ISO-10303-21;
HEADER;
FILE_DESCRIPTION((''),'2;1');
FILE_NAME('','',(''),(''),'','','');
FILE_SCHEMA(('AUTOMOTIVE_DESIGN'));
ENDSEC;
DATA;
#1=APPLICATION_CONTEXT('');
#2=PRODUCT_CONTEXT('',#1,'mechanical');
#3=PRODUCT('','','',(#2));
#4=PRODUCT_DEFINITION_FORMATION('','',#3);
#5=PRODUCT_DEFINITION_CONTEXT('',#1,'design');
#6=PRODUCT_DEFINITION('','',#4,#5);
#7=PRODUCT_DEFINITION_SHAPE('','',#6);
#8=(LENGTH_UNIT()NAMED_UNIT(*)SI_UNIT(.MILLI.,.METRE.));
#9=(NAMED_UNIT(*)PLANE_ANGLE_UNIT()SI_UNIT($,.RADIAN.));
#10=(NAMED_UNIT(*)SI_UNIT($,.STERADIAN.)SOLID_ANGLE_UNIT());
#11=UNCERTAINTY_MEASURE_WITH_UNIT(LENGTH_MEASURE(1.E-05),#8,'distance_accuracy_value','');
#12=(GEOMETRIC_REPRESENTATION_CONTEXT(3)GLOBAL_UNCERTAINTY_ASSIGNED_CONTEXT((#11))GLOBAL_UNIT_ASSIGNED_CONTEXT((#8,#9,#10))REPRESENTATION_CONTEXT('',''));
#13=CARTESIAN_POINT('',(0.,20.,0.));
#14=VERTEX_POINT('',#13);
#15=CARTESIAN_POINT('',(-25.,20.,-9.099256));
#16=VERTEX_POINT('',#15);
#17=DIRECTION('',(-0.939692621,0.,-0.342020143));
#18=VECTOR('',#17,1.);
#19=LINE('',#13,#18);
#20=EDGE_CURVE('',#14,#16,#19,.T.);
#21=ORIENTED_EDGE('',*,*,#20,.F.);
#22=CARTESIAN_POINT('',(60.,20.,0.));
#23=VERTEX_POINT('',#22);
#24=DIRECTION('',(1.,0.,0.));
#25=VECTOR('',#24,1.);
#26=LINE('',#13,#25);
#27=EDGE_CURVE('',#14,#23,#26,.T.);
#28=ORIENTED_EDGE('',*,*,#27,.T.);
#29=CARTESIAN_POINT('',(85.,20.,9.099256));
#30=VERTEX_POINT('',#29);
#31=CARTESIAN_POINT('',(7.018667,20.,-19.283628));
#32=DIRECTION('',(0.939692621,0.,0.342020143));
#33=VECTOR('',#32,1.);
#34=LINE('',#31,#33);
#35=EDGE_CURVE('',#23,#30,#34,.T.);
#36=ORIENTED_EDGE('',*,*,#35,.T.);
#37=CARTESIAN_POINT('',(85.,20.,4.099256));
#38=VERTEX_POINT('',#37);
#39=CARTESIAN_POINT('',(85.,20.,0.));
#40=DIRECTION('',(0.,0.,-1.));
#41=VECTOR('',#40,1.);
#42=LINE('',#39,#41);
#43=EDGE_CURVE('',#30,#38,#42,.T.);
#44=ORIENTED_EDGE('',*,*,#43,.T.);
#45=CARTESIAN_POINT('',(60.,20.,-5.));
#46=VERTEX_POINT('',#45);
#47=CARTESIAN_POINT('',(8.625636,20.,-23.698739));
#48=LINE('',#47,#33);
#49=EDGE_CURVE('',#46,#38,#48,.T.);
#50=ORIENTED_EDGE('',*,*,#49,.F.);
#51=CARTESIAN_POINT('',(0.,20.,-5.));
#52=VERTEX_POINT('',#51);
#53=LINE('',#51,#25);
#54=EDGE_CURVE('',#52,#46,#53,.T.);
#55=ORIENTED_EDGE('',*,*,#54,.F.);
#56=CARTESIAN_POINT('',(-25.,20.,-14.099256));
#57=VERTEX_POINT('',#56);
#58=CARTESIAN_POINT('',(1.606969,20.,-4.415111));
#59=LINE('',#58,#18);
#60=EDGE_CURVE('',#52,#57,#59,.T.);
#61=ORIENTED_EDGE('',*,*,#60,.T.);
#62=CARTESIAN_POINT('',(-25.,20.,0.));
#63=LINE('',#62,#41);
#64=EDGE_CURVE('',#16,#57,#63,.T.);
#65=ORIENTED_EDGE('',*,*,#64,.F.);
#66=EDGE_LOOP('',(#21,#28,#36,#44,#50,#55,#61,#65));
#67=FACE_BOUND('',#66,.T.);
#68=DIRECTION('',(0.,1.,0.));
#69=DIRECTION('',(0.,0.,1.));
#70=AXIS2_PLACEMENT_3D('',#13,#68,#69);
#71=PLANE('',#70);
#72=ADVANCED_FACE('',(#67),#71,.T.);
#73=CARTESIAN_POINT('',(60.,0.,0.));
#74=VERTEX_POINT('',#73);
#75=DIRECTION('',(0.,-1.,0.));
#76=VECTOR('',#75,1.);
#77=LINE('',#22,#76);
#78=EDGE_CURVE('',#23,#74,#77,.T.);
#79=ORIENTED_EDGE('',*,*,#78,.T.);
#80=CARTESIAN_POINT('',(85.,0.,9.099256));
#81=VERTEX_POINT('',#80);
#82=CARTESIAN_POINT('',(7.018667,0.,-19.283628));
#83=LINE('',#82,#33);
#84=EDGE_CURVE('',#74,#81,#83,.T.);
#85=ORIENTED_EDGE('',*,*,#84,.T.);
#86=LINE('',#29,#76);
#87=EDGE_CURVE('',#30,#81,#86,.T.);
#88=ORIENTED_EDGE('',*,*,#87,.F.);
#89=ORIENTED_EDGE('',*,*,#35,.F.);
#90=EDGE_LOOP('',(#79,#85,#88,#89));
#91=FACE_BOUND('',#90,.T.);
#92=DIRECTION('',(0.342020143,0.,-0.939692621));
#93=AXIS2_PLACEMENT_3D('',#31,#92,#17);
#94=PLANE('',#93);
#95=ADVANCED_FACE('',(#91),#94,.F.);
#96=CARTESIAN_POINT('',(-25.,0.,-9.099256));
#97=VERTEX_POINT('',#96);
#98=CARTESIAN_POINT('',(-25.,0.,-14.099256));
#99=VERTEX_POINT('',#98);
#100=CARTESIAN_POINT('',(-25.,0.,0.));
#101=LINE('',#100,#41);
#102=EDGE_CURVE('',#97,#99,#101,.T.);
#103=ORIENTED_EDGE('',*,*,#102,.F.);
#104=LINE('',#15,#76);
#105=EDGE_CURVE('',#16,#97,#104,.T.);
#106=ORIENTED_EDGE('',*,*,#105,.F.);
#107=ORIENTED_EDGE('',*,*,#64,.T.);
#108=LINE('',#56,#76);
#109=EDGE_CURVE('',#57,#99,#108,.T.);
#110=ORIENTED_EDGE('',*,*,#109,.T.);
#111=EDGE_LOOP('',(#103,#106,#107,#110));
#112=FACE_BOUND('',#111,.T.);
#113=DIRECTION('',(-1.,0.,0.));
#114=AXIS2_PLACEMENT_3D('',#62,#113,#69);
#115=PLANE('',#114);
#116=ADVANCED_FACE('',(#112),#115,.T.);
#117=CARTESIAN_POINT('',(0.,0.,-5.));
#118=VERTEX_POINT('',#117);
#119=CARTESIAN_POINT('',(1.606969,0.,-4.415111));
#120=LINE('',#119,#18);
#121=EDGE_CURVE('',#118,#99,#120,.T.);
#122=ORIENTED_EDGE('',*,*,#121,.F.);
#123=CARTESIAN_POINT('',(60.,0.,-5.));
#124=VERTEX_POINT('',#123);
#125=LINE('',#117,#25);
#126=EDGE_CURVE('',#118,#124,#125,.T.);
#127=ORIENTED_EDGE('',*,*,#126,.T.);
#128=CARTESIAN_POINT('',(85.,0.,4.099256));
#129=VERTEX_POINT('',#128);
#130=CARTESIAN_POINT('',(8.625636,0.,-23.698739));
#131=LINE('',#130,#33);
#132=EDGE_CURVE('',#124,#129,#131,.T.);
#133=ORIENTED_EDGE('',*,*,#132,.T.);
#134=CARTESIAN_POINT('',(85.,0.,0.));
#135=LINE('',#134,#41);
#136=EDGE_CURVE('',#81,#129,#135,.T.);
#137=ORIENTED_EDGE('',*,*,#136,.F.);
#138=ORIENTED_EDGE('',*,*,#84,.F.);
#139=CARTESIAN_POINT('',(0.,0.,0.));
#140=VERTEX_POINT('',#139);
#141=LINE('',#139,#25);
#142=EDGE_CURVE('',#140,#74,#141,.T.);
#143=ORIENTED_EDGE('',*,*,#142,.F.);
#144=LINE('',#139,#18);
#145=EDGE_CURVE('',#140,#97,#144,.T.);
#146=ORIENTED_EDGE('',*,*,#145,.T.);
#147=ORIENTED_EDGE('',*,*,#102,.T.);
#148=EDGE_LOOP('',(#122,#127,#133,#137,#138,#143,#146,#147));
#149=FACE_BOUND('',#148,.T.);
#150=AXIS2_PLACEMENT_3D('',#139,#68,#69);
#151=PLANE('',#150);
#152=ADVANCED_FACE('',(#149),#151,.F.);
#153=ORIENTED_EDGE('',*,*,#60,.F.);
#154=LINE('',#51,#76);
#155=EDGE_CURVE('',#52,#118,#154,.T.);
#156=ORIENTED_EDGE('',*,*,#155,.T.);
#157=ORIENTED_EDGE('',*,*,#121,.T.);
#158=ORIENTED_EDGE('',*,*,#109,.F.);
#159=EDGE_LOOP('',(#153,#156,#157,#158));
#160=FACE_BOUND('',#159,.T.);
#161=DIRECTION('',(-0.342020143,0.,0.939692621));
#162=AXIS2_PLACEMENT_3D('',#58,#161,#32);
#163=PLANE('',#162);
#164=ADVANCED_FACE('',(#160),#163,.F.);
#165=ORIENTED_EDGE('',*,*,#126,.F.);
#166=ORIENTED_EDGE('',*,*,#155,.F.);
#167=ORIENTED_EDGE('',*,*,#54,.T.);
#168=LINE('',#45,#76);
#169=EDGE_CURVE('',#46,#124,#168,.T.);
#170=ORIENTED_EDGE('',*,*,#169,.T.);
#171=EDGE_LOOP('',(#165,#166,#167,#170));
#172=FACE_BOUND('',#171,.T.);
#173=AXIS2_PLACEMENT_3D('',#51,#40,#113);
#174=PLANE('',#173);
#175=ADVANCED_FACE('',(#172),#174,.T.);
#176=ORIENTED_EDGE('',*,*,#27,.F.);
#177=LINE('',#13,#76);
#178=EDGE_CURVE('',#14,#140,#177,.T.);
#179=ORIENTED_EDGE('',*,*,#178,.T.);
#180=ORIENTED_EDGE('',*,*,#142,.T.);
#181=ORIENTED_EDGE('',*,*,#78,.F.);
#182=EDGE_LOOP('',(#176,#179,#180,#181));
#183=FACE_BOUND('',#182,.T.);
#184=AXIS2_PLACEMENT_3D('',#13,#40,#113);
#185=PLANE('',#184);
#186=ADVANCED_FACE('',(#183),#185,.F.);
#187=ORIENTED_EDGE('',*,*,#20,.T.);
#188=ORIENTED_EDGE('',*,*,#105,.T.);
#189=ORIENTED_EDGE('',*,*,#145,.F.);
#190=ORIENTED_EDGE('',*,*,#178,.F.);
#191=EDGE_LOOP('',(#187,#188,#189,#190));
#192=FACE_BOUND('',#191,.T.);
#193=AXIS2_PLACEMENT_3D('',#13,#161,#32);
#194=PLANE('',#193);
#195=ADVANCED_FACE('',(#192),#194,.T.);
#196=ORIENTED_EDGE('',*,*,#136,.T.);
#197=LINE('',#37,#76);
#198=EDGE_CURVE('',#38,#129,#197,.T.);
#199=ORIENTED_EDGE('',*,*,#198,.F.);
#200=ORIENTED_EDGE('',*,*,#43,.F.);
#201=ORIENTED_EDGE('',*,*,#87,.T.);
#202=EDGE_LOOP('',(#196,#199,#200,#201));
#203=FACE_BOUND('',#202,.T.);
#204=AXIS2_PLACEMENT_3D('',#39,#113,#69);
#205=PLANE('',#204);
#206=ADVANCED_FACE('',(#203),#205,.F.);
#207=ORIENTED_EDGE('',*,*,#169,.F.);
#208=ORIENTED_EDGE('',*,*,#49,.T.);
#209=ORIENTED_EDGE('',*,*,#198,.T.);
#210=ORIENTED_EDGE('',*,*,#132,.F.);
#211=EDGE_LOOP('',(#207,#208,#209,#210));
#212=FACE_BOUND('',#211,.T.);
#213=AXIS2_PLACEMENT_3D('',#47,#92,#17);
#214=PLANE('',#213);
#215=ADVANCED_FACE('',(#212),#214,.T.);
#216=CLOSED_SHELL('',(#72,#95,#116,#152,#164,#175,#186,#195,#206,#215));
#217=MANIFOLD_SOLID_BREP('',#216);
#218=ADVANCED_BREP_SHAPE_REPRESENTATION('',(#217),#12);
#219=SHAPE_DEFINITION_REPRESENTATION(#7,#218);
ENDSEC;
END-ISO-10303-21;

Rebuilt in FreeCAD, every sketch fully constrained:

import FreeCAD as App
import Part
import Sketcher
Q = App.Units.Quantity

doc = App.newDocument("Part")
params = doc.addObject("Spreadsheet::Sheet", "Params")
for row, (alias, value) in enumerate([
    ("sketch1_width", "60 mm"),
    ("sketch1_height", "5 mm"),
    ("pad1_length", "20 mm"),
], start=1):
    params.set(f"A{row}", alias)
    params.set(f"B{row}", "=" + value)
    params.setAlias(f"B{row}", alias)

body = doc.addObject("PartDesign::Body", "Body")

# Sketch on XZ plane
sketch1 = doc.addObject("Sketcher::SketchObject", "Sketch")
body.addObject(sketch1)
sketch1.AttachmentSupport = (doc.XZ_Plane, [""])
sketch1.MapMode = "FlatFace"
sketch1.addGeometry(Part.LineSegment(App.Vector(-25, -14.1, 0), App.Vector(-25, -9.1, 0)), False)
sketch1.addGeometry(Part.LineSegment(App.Vector(-25, -9.1, 0), App.Vector(0, 0, 0)), False)
sketch1.addGeometry(Part.LineSegment(App.Vector(0, 0, 0), App.Vector(60, 0, 0)), False)
sketch1.addGeometry(Part.LineSegment(App.Vector(60, 0, 0), App.Vector(85, 9.1, 0)), False)
sketch1.addGeometry(Part.LineSegment(App.Vector(85, 9.1, 0), App.Vector(85, 4.1, 0)), False)
sketch1.addGeometry(Part.LineSegment(App.Vector(85, 4.1, 0), App.Vector(60, -5, 0)), False)
sketch1.addGeometry(Part.LineSegment(App.Vector(60, -5, 0), App.Vector(0, -5, 0)), False)
sketch1.addGeometry(Part.LineSegment(App.Vector(0, -5, 0), App.Vector(-25, -14.1, 0)), False)
sketch1.addConstraint(Sketcher.Constraint("Coincident", 0, 2, 1, 1))
sketch1.addConstraint(Sketcher.Constraint("Coincident", 1, 2, 2, 1))
sketch1.addConstraint(Sketcher.Constraint("Coincident", 2, 2, 3, 1))
sketch1.addConstraint(Sketcher.Constraint("Coincident", 3, 2, 4, 1))
sketch1.addConstraint(Sketcher.Constraint("Coincident", 4, 2, 5, 1))
sketch1.addConstraint(Sketcher.Constraint("Coincident", 5, 2, 6, 1))
sketch1.addConstraint(Sketcher.Constraint("Coincident", 6, 2, 7, 1))
sketch1.addConstraint(Sketcher.Constraint("Coincident", 7, 2, 0, 1))
sketch1.addConstraint(Sketcher.Constraint("Vertical", 0))
sketch1.addConstraint(Sketcher.Constraint("Horizontal", 2))
sketch1.addConstraint(Sketcher.Constraint("Vertical", 4))
sketch1.addConstraint(Sketcher.Constraint("Horizontal", 6))
sketch1.addConstraint(Sketcher.Constraint("Coincident", 1, 2, -1, 1))
sketch1.addConstraint(Sketcher.Constraint("PointOnObject", 6, 2, -2))
sketch1.addConstraint(Sketcher.Constraint("Parallel", 1, 3))
sketch1.addConstraint(Sketcher.Constraint("Parallel", 3, 5))
sketch1.addConstraint(Sketcher.Constraint("Parallel", 5, 7))
sketch1.addConstraint(Sketcher.Constraint("Vertical", 2, 2, 5, 2))
sketch1.addConstraint(Sketcher.Constraint("Equal", 1, 3))
sketch1.addConstraint(Sketcher.Constraint("DistanceX", 2, 1, 2, 2, Q("60 mm")))
sketch1.addConstraint(Sketcher.Constraint("DistanceY", 0, 1, 0, 2, Q("5 mm")))
sketch1.addConstraint(Sketcher.Constraint("Angle", 1, Q("20 deg")))
sketch1.addConstraint(Sketcher.Constraint("DistanceX", 0, 2, -1, 1, Q("25 mm")))
sketch1.setExpression("Constraints[19]", "Params.sketch1_width")
sketch1.setExpression("Constraints[20]", "Params.sketch1_height")
pad1 = doc.addObject("PartDesign::Pad", "Pad")
body.addObject(pad1)
pad1.Profile = sketch1
pad1.setExpression("Length", "Params.pad1_length")
pad1.Reversed = True

doc.recompute()
